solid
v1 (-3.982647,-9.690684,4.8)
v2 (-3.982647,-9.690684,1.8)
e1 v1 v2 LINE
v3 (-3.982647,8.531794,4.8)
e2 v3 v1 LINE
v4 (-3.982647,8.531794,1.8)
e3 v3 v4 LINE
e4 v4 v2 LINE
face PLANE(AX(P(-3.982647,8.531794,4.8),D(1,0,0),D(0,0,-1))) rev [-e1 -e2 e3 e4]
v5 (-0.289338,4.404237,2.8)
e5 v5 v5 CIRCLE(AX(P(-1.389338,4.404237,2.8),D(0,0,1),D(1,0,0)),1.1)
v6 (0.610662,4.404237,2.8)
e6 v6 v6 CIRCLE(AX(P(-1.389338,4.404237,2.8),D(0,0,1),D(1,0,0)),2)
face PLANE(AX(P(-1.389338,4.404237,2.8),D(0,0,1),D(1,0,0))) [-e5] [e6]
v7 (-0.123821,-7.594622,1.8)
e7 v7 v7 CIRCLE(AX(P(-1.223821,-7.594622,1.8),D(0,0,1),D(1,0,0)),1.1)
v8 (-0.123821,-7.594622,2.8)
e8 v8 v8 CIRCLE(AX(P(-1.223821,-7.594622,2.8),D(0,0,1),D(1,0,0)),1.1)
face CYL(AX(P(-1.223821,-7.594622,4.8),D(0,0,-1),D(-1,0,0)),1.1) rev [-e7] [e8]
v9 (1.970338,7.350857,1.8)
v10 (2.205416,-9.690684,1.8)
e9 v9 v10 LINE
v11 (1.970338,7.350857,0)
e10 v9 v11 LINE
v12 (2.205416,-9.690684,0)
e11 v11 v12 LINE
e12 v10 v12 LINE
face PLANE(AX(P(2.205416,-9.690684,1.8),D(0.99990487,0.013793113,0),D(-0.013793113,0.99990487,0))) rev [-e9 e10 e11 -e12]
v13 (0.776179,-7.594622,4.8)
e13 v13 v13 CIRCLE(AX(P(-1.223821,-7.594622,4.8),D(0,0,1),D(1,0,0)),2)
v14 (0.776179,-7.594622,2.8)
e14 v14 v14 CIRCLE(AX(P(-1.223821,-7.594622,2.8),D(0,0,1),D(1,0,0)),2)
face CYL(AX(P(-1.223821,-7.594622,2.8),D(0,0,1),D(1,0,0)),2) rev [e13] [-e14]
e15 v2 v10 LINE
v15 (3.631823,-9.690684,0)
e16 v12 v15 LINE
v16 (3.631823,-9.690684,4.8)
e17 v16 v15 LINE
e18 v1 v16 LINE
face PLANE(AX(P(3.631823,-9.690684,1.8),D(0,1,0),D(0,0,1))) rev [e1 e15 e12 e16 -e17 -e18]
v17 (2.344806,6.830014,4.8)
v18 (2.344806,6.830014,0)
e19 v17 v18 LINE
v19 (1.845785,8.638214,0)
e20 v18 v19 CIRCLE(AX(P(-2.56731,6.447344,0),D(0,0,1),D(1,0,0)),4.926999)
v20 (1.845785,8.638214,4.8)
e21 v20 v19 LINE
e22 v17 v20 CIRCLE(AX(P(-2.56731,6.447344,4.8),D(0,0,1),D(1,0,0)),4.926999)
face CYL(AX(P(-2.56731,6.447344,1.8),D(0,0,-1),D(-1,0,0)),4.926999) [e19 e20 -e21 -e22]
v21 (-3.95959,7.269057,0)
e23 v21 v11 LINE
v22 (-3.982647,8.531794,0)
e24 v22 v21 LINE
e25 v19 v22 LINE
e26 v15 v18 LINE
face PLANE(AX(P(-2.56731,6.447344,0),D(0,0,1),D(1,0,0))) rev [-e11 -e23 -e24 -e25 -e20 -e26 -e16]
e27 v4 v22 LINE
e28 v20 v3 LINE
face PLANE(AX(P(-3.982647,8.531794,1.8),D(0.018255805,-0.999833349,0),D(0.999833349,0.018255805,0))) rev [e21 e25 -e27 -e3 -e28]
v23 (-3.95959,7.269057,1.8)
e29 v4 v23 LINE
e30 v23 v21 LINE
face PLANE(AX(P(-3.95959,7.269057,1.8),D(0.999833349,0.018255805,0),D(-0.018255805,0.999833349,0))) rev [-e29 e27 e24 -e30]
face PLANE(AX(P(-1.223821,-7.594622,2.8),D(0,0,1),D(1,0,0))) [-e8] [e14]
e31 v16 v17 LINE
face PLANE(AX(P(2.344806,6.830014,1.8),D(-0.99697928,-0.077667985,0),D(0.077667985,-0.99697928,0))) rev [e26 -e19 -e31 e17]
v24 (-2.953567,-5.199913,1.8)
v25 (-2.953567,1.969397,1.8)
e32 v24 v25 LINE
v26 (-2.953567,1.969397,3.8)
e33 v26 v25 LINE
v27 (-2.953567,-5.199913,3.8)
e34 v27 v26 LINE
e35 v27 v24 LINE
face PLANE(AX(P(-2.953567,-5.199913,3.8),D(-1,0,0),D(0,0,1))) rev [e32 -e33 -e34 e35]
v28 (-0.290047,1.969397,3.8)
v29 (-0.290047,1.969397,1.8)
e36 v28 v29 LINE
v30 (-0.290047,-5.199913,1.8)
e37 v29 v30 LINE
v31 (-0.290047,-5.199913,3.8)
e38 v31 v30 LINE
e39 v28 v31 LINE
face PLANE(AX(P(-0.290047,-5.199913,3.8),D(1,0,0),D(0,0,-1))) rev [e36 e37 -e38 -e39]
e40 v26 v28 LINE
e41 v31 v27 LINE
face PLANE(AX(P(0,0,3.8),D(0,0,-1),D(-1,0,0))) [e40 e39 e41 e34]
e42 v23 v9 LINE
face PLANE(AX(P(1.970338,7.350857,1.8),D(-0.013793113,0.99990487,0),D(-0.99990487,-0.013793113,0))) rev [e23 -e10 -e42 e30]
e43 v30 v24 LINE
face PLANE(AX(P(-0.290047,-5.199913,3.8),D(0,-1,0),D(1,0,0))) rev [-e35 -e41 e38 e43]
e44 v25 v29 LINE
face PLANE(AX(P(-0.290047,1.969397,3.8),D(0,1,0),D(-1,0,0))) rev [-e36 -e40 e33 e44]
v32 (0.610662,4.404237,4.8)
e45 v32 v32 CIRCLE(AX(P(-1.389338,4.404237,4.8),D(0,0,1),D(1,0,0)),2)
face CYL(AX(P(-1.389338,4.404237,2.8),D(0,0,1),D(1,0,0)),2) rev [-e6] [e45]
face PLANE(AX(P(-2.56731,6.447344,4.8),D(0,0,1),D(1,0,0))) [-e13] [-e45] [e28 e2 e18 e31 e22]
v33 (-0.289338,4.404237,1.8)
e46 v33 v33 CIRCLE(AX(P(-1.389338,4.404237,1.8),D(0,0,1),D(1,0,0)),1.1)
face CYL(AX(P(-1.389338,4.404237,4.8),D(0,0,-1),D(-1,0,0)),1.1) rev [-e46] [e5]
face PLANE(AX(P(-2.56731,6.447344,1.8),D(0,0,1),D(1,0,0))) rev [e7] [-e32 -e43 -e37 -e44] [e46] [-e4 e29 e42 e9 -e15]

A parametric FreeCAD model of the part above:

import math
import FreeCAD as App
import Part
import Sketcher

V = App.Vector
Q = App.Units.Quantity

doc = App.newDocument("Part")
body = doc.addObject("PartDesign::Body", "Body")

# Sketch on XY plane
sketch1 = body.newObject("Sketcher::SketchObject", "Sketch")
sketch1.AttachmentSupport = (doc.getObject("XY_Plane"), [""])
sketch1.MapMode = "FlatFace"
sketch1.addGeometry([
    Part.LineSegment(V(3.63, -9.69, 0), V(2.34, 6.83, 0)),  # 0
    Part.ArcOfCircle(Part.Circle(V(-2.57, 6.45, 0), V(0, 0, 1), 4.93), math.radians(4), math.radians(26)),  # 1
    Part.LineSegment(V(1.85, 8.64, 0), V(-3.98, 8.53, 0)),  # 2
    Part.LineSegment(V(-3.98, 8.53, 0), V(-3.96, 7.27, 0)),  # 3
    Part.LineSegment(V(-3.96, 7.27, 0), V(1.97, 7.35, 0)),  # 4
    Part.LineSegment(V(1.97, 7.35, 0), V(1.98, 6.95, 0)),  # 5
    Part.LineSegment(V(1.98, 6.95, 0), V(2.21, -9.69, 0)),  # 6
    Part.LineSegment(V(2.21, -9.69, 0), V(3.63, -9.69, 0)),  # 7
], False)
sketch1.addConstraint([
    Sketcher.Constraint("Tangent", 0, 2, 1, 1),
    Sketcher.Constraint("Coincident", 1, 2, 2, 1),
    Sketcher.Constraint("Coincident", 2, 2, 3, 1),
    Sketcher.Constraint("Coincident", 3, 2, 4, 1),
    Sketcher.Constraint("Coincident", 4, 2, 5, 1),
    Sketcher.Constraint("Coincident", 5, 2, 6, 1),
    Sketcher.Constraint("Coincident", 6, 2, 7, 1),
    Sketcher.Constraint("Coincident", 7, 2, 0, 1),
    Sketcher.Constraint("Horizontal", 7),
    Sketcher.Constraint("Perpendicular", 2, 3),
    Sketcher.Constraint("Perpendicular", 4, 5),
    Sketcher.Constraint("Parallel", 5, 6),
    Sketcher.Constraint("Radius", 1, Q("4.926999 mm")),
    Sketcher.Constraint("DistanceX", -1, 1, 5, 2, Q("1.975902 mm")),
    Sketcher.Constraint("DistanceY", 0, 2, 1, 2, Q("1.8082 mm")),
    Sketcher.Constraint("DistanceY", 3, 2, 4, 2, Q("0.0818 mm")),
    Sketcher.Constraint("DistanceY", 0, 2, 5, 2, Q("0.1175 mm")),
    Sketcher.Constraint("DistanceY", 6, 2, 0, 2, Q("16.520698 mm")),
    Sketcher.Constraint("Distance", 5, Q("0.403382 mm")),
    Sketcher.Constraint("DistanceX", 7, 1, 7, 2, Q("1.426407 mm")),
    Sketcher.Constraint("DistanceX", 1, 3, -1, 1, Q("2.56731 mm")),
    Sketcher.Constraint("DistanceX", 3, 2, -1, 1, Q("3.95959 mm")),
    Sketcher.Constraint("DistanceY", 1, 3, 2, 2, Q("2.084449 mm")),
    Sketcher.Constraint("DistanceY", -1, 1, 1, 3, Q("6.447344 mm")),
])
pad1 = body.newObject("PartDesign::Pad", "Pad")
pad1.Profile = sketch1
pad1.Length = 1.8

# Sketch on XY plane
sketch2 = body.newObject("Sketcher::SketchObject", "Sketch001")
sketch2.AttachmentSupport = (doc.getObject("XY_Plane"), [""])
sketch2.MapMode = "FlatFace"
sketch2.AttachmentOffset = App.Placement(V(0, 0, 1.8), App.Rotation())
sketch2.addGeometry([
    Part.LineSegment(V(-4, 8.5, 0), V(-4, -9.7, 0)),  # 0
    Part.LineSegment(V(-4, -9.7, 0), V(3.6, -9.7, 0)),  # 1
    Part.LineSegment(V(3.6, -9.7, 0), V(2.3, 6.8, 0)),  # 2
    Part.ArcOfCircle(Part.Circle(V(-2.6, 6.4, 0), V(0, 0, 1), 4.9), math.radians(4), math.radians(26)),  # 3
    Part.LineSegment(V(1.8, 8.6, 0), V(-4, 8.5, 0)),  # 4
    Part.Circle(V(-1.2, -7.6, 0), V(0, 0, 1), 1.1),  # 5
    Part.Circle(V(-1.4, 4.4, 0), V(0, 0, 1), 1.1),  # 6
], False)
sketch2.addConstraint([
    Sketcher.Constraint("Coincident", 0, 2, 1, 1),
    Sketcher.Constraint("Coincident", 1, 2, 2, 1),
    Sketcher.Constraint("Tangent", 2, 2, 3, 1),
    Sketcher.Constraint("Coincident", 3, 2, 4, 1),
    Sketcher.Constraint("Coincident", 4, 2, 0, 1),
    Sketcher.Constraint("Vertical", 0),
    Sketcher.Constraint("Horizontal", 1),
    Sketcher.Constraint("Equal", 5, 6),
    Sketcher.Constraint("Diameter", 5, Q("2.2 mm")),
    Sketcher.Constraint("Radius", 3, Q("4.926999 mm")),
    Sketcher.Constraint("DistanceX", 1, 1, 1, 2, Q("7.61447 mm")),
    Sketcher.Constraint("DistanceY", 1, 2, 2, 2, Q("16.520698 mm")),
    Sketcher.Constraint("DistanceY", 2, 2, 3, 2, Q("1.8082 mm")),
    Sketcher.Constraint("DistanceY", 0, 2, 0, 1, Q("18.222478 mm")),
    Sketcher.Constraint("DistanceX", 3, 3, -1, 1, Q("2.56731 mm")),
    Sketcher.Constraint("DistanceX", 5, 3, -1, 1, Q("1.223821 mm")),
    Sketcher.Constraint("DistanceY", 5, 3, -1, 1, Q("7.594622 mm")),
    Sketcher.Constraint("DistanceX", 6, 3, -1, 1, Q("1.389338 mm")),
    Sketcher.Constraint("DistanceY", 5, 3, 6, 3, Q("11.998858 mm")),
    Sketcher.Constraint("DistanceX", 0, 2, 6, 3, Q("2.593308 mm")),
    Sketcher.Constraint("DistanceY", 0, 2, 6, 3, Q("14.094921 mm")),
])
pad2 = body.newObject("PartDesign::Pad", "Pad001")
pad2.Profile = sketch2
pad2.Length = 3

# Sketch on XY plane
sketch3 = body.newObject("Sketcher::SketchObject", "Sketch002")
sketch3.AttachmentSupport = (doc.getObject("XY_Plane"), [""])
sketch3.MapMode = "FlatFace"
sketch3.AttachmentOffset = App.Placement(V(0, 0, 1.8), App.Rotation())
sketch3.addGeometry([
    Part.LineSegment(V(-3, -5.2, 0), V(-3, 2, 0)),
    Part.LineSegment(V(-3, 2, 0), V(-0.3, 2, 0)),
    Part.LineSegment(V(-0.3, 2, 0), V(-0.3, -5.2, 0)),
    Part.LineSegment(V(-0.3, -5.2, 0), V(-3, -5.2, 0)),
], False)
sketch3.addConstraint([
    Sketcher.Constraint("Coincident", 0, 2, 1, 1),
    Sketcher.Constraint("Coincident", 1, 2, 2, 1),
    Sketcher.Constraint("Coincident", 2, 2, 3, 1),
    Sketcher.Constraint("Coincident", 3, 2, 0, 1),
    Sketcher.Constraint("Vertical", 0),
    Sketcher.Constraint("Horizontal", 1),
    Sketcher.Constraint("Vertical", 2),
    Sketcher.Constraint("Horizontal", 3),
    Sketcher.Constraint("DistanceX", 1, 1, 1, 2, Q("2.663521 mm")),
    Sketcher.Constraint("DistanceY", 0, 1, 0, 2, Q("7.16931 mm")),
    Sketcher.Constraint("DistanceX", 0, 2, -1, 1, Q("2.953567 mm")),
    Sketcher.Constraint("DistanceY", -1, 1, 0, 2, Q("1.969397 mm")),
])
pocket1 = body.newObject("PartDesign::Pocket", "Pocket")
pocket1.Profile = sketch3
pocket1.Length = 2
pocket1.Reversed = True

# Sketch on XY plane
sketch4 = body.newObject("Sketcher::SketchObject", "Sketch003")
sketch4.AttachmentSupport = (doc.getObject("XY_Plane"), [""])
sketch4.MapMode = "FlatFace"
sketch4.AttachmentOffset = App.Placement(V(0, 0, 4.8), App.Rotation())
sketch4.addGeometry([
    Part.Circle(V(-1.4, 4.4, 0), V(0, 0, 1), 2),
    Part.Circle(V(-1.2, -7.6, 0), V(0, 0, 1), 2),
], False)
sketch4.addConstraint([
    Sketcher.Constraint("Equal", 0, 1),
    Sketcher.Constraint("Diameter", 0, Q("4 mm")),
    Sketcher.Constraint("DistanceX", 0, 3, -1, 1, Q("1.389338 mm")),
    Sketcher.Constraint("DistanceX", 1, 3, -1, 1, Q("1.223821 mm")),
    Sketcher.Constraint("DistanceY", 1, 3, -1, 1, Q("7.594622 mm")),
    Sketcher.Constraint("DistanceY", 1, 3, 0, 3, Q("11.998858 mm")),
])
pocket2 = body.newObject("PartDesign::Pocket", "Pocket001")
pocket2.Profile = sketch4
pocket2.Length = 2

doc.recompute()
